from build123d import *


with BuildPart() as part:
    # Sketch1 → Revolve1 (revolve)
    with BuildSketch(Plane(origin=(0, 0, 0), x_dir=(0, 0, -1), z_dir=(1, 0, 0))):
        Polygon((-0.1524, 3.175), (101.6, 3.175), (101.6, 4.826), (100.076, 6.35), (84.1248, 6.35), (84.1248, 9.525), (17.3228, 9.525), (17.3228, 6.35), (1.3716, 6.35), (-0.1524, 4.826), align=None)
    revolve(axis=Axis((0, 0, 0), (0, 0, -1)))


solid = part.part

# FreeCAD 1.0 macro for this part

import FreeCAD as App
import Part
import Sketcher

V = App.Vector
Q = App.Units.Quantity


def add_polygon(sketch, points):
    """Adds a closed chain of lines whose ends are joined by coincident constraints."""
    first, n = sketch.GeometryCount, len(points)
    for a, b in zip(points, points[1:] + points[:1]):
        sketch.addGeometry(Part.LineSegment(App.Vector(*a, 0), App.Vector(*b, 0)), False)
    for i in range(n):
        sketch.addConstraint(Sketcher.Constraint("Coincident", first + i, 2, first + (i + 1) % n, 1))

doc = App.newDocument("Part")
body = doc.addObject("PartDesign::Body", "Body")

sketch1 = body.newObject("Sketcher::SketchObject", "Sketch")
sketch1.AttachmentSupport = (doc.getObject("YZ_Plane"), [""])
sketch1.MapMode = "FlatFace"
add_polygon(sketch1, [(3.2, 0.2), (3.2, -101.6), (4.8, -101.6), (6.3, -100.1), (6.3, -84.1), (9.5, -84.1), (9.5, -17.3), (6.3, -17.3), (6.3, -1.4), (4.8, 0.2)])
sketch1.addConstraint([
    Sketcher.Constraint("Vertical", 0),
    Sketcher.Constraint("Horizontal", 1),
    Sketcher.Constraint("Vertical", 3),
    Sketcher.Constraint("Horizontal", 4),
    Sketcher.Constraint("Vertical", 5),
    Sketcher.Constraint("Horizontal", 6),
    Sketcher.Constraint("Vertical", 7),
    Sketcher.Constraint("Horizontal", 9),
    Sketcher.Constraint("Perpendicular", 2, 8),
    Sketcher.Constraint("Vertical", 3, 2, 6, 2),
    Sketcher.Constraint("Vertical", 1, 2, 8, 2),
    Sketcher.Constraint("Equal", 3, 7),
    Sketcher.Constraint("Equal", 2, 8),
    Sketcher.Constraint("DistanceY", 0, 2, -1, 1, Q("4 in")),
    Sketcher.Constraint("DistanceY", 5, 1, 5, 2, Q("2.63 in")),
    Sketcher.Constraint("DistanceX", 1, 1, 1, 2, Q("0.065 in")),
    Sketcher.Constraint("DistanceX", 4, 1, 4, 2, Q("0.125 in")),
    Sketcher.Constraint("DistanceY", 0, 2, 0, 1, Q("4.006 in")),
    Sketcher.Constraint("DistanceY", 3, 1, 3, 2, Q("0.628 in")),
    Sketcher.Constraint("DistanceX", -1, 1, 1, 2, Q("0.19 in")),
])
revolution = body.newObject("PartDesign::Revolution", "Revolution")
revolution.Profile = sketch1
revolution.ReferenceAxis = (sketch1, ["V_Axis"])
revolution.Angle = 360

doc.recompute()
